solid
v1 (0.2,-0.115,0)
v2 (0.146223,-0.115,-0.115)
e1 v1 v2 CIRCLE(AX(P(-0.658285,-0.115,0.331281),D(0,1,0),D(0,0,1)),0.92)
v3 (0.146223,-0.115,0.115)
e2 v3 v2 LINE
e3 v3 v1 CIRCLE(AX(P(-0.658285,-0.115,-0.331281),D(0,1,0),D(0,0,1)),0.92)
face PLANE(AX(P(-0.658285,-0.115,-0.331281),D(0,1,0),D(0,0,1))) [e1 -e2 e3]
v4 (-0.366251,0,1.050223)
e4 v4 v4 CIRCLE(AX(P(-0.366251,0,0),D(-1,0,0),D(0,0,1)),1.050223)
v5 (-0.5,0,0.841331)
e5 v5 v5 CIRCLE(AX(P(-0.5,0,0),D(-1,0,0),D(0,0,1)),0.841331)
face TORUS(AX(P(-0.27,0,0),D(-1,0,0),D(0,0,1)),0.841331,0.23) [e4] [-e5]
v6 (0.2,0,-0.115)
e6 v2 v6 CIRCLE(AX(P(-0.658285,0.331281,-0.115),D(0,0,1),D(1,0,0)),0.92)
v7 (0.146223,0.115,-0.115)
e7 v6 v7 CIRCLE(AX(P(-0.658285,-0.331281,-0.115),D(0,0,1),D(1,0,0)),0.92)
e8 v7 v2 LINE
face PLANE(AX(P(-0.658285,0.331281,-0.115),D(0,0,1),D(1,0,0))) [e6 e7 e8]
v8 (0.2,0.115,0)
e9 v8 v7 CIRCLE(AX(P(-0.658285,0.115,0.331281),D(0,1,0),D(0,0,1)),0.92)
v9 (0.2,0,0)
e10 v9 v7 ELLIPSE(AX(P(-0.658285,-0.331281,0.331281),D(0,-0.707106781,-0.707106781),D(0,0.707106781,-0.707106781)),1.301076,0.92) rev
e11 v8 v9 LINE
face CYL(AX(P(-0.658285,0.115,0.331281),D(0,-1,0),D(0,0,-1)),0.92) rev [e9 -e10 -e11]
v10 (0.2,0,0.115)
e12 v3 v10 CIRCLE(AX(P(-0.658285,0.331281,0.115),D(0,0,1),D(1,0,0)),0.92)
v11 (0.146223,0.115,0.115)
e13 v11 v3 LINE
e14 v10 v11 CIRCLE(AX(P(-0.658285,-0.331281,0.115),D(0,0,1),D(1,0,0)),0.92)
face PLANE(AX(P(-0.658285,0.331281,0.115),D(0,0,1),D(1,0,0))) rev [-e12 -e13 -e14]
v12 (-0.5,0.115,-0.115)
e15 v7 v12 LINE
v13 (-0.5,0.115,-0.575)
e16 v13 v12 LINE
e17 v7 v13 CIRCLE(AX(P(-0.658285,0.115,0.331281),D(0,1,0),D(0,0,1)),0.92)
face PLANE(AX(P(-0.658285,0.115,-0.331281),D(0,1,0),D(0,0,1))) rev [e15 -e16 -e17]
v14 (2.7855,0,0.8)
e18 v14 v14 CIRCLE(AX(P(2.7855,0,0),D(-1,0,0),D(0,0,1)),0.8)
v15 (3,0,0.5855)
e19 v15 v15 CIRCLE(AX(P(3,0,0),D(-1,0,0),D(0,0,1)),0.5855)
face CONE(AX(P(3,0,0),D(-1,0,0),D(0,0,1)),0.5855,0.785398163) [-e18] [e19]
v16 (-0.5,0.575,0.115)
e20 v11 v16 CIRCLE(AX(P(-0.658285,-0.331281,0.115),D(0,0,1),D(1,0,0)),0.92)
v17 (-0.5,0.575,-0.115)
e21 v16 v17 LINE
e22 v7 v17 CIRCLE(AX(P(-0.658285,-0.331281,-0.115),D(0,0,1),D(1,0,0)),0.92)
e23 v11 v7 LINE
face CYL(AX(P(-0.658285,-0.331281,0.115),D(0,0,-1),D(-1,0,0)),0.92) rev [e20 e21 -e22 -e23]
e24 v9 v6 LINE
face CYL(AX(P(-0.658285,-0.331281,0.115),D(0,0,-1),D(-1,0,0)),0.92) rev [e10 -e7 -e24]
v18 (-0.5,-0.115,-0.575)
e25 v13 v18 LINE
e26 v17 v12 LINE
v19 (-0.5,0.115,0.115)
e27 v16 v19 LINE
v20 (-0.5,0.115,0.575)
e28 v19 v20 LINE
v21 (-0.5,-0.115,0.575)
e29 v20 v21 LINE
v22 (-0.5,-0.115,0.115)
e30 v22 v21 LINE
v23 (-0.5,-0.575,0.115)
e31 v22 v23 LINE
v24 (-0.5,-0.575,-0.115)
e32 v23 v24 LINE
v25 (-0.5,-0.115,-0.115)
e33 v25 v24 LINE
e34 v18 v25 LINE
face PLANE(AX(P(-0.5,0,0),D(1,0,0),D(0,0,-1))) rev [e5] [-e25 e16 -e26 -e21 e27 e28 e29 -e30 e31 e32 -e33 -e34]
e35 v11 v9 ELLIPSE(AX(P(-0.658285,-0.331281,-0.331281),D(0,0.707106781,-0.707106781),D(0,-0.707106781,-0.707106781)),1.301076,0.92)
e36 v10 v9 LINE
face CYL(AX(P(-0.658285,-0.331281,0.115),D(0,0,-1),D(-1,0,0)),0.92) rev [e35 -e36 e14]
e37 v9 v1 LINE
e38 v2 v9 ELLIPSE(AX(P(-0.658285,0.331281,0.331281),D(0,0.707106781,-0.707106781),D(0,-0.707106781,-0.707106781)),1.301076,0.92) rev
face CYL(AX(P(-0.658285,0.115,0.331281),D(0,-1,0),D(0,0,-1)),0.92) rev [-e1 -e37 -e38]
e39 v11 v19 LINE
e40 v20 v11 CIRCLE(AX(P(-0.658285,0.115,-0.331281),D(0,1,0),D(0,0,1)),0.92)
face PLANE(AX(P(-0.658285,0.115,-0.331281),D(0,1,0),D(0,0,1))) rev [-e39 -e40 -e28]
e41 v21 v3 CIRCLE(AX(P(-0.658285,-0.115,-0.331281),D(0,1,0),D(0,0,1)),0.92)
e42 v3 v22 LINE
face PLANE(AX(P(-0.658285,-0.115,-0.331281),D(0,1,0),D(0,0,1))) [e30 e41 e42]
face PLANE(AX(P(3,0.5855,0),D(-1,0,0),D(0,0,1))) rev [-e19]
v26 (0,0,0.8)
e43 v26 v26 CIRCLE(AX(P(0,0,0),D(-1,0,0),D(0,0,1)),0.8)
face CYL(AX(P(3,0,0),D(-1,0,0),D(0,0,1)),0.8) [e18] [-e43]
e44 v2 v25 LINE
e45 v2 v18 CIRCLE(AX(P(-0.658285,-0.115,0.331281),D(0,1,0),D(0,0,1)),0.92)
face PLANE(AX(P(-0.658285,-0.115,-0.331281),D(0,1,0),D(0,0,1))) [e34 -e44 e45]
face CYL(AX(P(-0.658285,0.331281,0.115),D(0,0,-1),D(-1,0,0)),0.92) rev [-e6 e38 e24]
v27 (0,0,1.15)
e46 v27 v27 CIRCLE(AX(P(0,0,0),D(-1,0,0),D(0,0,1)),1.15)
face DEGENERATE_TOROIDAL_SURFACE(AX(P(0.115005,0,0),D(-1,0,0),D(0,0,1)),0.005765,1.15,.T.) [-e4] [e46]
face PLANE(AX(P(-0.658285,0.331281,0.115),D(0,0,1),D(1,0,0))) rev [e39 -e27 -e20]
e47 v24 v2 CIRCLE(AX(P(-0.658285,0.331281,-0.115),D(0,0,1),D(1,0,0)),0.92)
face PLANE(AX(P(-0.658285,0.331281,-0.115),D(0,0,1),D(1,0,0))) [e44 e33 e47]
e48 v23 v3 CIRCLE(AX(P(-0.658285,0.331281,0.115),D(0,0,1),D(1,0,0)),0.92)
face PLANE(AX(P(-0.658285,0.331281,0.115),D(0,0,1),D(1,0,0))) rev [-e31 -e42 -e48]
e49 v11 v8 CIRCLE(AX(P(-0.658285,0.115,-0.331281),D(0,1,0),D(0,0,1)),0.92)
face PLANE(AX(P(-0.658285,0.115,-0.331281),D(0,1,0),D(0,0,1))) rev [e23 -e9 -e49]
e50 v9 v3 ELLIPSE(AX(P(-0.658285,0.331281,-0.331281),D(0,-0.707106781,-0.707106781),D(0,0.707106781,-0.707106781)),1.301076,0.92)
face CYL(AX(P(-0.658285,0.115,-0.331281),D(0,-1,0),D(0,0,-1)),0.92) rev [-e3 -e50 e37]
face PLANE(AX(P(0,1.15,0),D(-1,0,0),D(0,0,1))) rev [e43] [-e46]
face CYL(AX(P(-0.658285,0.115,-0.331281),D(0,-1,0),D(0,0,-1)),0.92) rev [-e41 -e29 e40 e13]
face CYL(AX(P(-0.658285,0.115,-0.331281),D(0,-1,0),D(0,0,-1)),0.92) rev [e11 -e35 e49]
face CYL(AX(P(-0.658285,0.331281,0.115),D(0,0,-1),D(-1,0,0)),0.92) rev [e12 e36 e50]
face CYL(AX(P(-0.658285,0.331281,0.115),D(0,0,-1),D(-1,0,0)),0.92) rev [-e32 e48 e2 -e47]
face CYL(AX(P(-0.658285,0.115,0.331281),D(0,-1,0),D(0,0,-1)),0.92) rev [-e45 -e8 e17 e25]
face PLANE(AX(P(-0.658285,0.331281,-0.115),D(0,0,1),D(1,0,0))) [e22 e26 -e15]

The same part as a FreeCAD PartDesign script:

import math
import FreeCAD as App
import Part
import Sketcher
from FreeCAD import Vector
Q = App.Units.Quantity

doc = App.newDocument("Part")
params = doc.addObject("Spreadsheet::Sheet", "Params")
for row, (alias, value) in enumerate([
    ("sketch1_radius", "1.15 mm"),
    ("sketch1_radius2", "0.23 mm"),
    ("sketch1_width", "3.5 mm"),
    ("sketch1_height", "0.35 mm"),
    ("revolution_angle", "360 deg"),
    ("sketch2_radius", "0.92 mm"),
    ("sketch2_height", "1.15 mm"),
    ("pocket1_length", "0.115 mm"),
    ("pocket1_length2", "0.115 mm"),
    ("sketch3_radius", "0.92 mm"),
    ("sketch3_height", "1.15 mm"),
    ("pocket2_length", "0.115 mm"),
    ("pocket2_length2", "0.115 mm"),
], start=1):
    params.set(f"A{row}", alias)
    params.set(f"B{row}", "=" + value)
    params.setAlias(f"B{row}", alias)

body = doc.addObject("PartDesign::Body", "Body")

# Sketch on XY plane
sketch1 = doc.addObject("Sketcher::SketchObject", "Sketch")
body.addObject(sketch1)
sketch1.AttachmentSupport = (doc.XY_Plane, [""])
sketch1.MapMode = "FlatFace"
sketch1.addGeometry([
    Part.LineSegment(Vector(-0.5, 0.84, 0), Vector(-0.5, 0, 0)),  # 0
    Part.LineSegment(Vector(-0.5, 0, 0), Vector(3, 0, 0)),  # 1
    Part.LineSegment(Vector(3, 0, 0), Vector(3, 0.59, 0)),  # 2
    Part.LineSegment(Vector(3, 0.59, 0), Vector(2.79, 0.8, 0)),  # 3
    Part.LineSegment(Vector(2.79, 0.8, 0), Vector(0, 0.8, 0)),  # 4
    Part.LineSegment(Vector(0, 0.8, 0), Vector(0, 1.15, 0)),  # 5
    Part.ArcOfCircle(Part.Circle(Vector(0.12, 0.01, 0), Vector(0, 0, 1), 1.15), math.radians(95.74), math.radians(114.74)),  # 6
    Part.ArcOfCircle(Part.Circle(Vector(-0.27, 0.84, 0), Vector(0, 0, 1), 0.23), math.radians(115), math.radians(180)),  # 7
], False)
sketch1.addConstraint([
    Sketcher.Constraint("Coincident", 0, 2, 1, 1),
    Sketcher.Constraint("Coincident", 1, 2, 2, 1),
    Sketcher.Constraint("Coincident", 2, 2, 3, 1),
    Sketcher.Constraint("Coincident", 3, 2, 4, 1),
    Sketcher.Constraint("Coincident", 4, 2, 5, 1),
    Sketcher.Constraint("Coincident", 5, 2, 6, 1),
    Sketcher.Constraint("Tangent", 6, 2, 7, 1),
    Sketcher.Constraint("Tangent", 7, 2, 0, 1),
    Sketcher.Constraint("Vertical", 0),
    Sketcher.Constraint("Horizontal", 1),
    Sketcher.Constraint("Vertical", 2),
    Sketcher.Constraint("Horizontal", 4),
    Sketcher.Constraint("Vertical", 5),
    Sketcher.Constraint("PointOnObject", 0, 2, -1),
    Sketcher.Constraint("PointOnObject", 4, 2, -2),
    Sketcher.Constraint("Angle", 3, Q("135 deg")),
    Sketcher.Constraint("Radius", 6, 1.15),
    Sketcher.Constraint("Radius", 7, 0.23),
    Sketcher.Constraint("DistanceX", 1, 1, 1, 2, 3.5),
    Sketcher.Constraint("DistanceX", -1, 1, 1, 2, 3.0),
    Sketcher.Constraint("DistanceY", 5, 1, 5, 2, 0.35),
    Sketcher.Constraint("DistanceY", -1, 1, 3, 2, 0.8),
    Sketcher.Constraint("DistanceX", 4, 2, 4, 1, 2.7855),
    Sketcher.Constraint("DistanceY", 0, 2, 0, 1, 0.841331),
])
sketch1.setExpression("Constraints[16]", "Params.sketch1_radius")
sketch1.setExpression("Constraints[17]", "Params.sketch1_radius2")
sketch1.setExpression("Constraints[18]", "Params.sketch1_width")
sketch1.setExpression("Constraints[20]", "Params.sketch1_height")
revolution = doc.addObject("PartDesign::Revolution", "Revolution")
body.addObject(revolution)
revolution.Profile = sketch1
revolution.ReferenceAxis = (sketch1, ["H_Axis"])
revolution.setExpression("Angle", "Params.revolution_angle")

# Sketch on XY plane
sketch2 = doc.addObject("Sketcher::SketchObject", "Sketch001")
body.addObject(sketch2)
sketch2.AttachmentSupport = (doc.XY_Plane, [""])
sketch2.MapMode = "FlatFace"
sketch2.addGeometry([
    Part.LineSegment(Vector(-0.5, 0.6, 0), Vector(-0.5, -0.6, 0)),
    Part.ArcOfCircle(Part.Circle(Vector(-0.7, 0.3, 0), Vector(0, 0, 1), 0.9), math.radians(-80), math.radians(-21)),
    Part.ArcOfCircle(Part.Circle(Vector(-0.7, -0.3, 0), Vector(0, 0, 1), 0.9), math.radians(21), math.radians(80)),
], False)
sketch2.addConstraint([
    Sketcher.Constraint("Coincident", 0, 2, 1, 1),
    Sketcher.Constraint("Coincident", 1, 2, 2, 1),
    Sketcher.Constraint("Coincident", 2, 2, 0, 1),
    Sketcher.Constraint("Vertical", 0),
    Sketcher.Constraint("Equal", 1, 2),
    Sketcher.Constraint("Symmetric", 1, 3, 2, 3, -1),
    Sketcher.Constraint("Radius", 1, 0.92),
    Sketcher.Constraint("DistanceY", 0, 2, 0, 1, 1.15),
    Sketcher.Constraint("DistanceX", 0, 2, -1, 1, 0.5),
    Sketcher.Constraint("DistanceX", -1, 1, 1, 2, 0.2),
])
sketch2.setExpression("Constraints[6]", "Params.sketch2_radius")
sketch2.setExpression("Constraints[7]", "Params.sketch2_height")
pocket1 = doc.addObject("PartDesign::Pocket", "Pocket")
body.addObject(pocket1)
pocket1.Profile = sketch2
pocket1.Type = "TwoLengths"
pocket1.setExpression("Length", "Params.pocket1_length")
pocket1.setExpression("Length2", "Params.pocket1_length2")
pocket1.Reversed = True

# Sketch on XZ plane
sketch3 = doc.addObject("Sketcher::SketchObject", "Sketch002")
body.addObject(sketch3)
sketch3.AttachmentSupport = (doc.XZ_Plane, [""])
sketch3.MapMode = "FlatFace"
sketch3.addGeometry([
    Part.LineSegment(Vector(-0.5, -0.6, 0), Vector(-0.5, 0.6, 0)),
    Part.ArcOfCircle(Part.Circle(Vector(-0.7, -0.3, 0), Vector(0, 0, 1), 0.9), math.radians(21), math.radians(80)),
    Part.ArcOfCircle(Part.Circle(Vector(-0.7, 0.3, 0), Vector(0, 0, 1), 0.9), math.radians(-80), math.radians(-21)),
], False)
sketch3.addConstraint([
    Sketcher.Constraint("Coincident", 0, 2, 1, 2),
    Sketcher.Constraint("Coincident", 1, 1, 2, 2),
    Sketcher.Constraint("Coincident", 2, 1, 0, 1),
    Sketcher.Constraint("Vertical", 0),
    Sketcher.Constraint("Equal", 1, 2),
    Sketcher.Constraint("Symmetric", 1, 3, 2, 3, -1),
    Sketcher.Constraint("Radius", 1, 0.92),
    Sketcher.Constraint("DistanceY", 0, 1, 0, 2, 1.15),
    Sketcher.Constraint("DistanceX", 0, 2, -1, 1, 0.5),
    Sketcher.Constraint("DistanceX", -1, 1, 1, 1, 0.2),
])
sketch3.setExpression("Constraints[6]", "Params.sketch3_radius")
sketch3.setExpression("Constraints[7]", "Params.sketch3_height")
pocket2 = doc.addObject("PartDesign::Pocket", "Pocket001")
body.addObject(pocket2)
pocket2.Profile = sketch3
pocket2.Type = "TwoLengths"
pocket2.setExpression("Length", "Params.pocket2_length")
pocket2.setExpression("Length2", "Params.pocket2_length2")

doc.recompute()
